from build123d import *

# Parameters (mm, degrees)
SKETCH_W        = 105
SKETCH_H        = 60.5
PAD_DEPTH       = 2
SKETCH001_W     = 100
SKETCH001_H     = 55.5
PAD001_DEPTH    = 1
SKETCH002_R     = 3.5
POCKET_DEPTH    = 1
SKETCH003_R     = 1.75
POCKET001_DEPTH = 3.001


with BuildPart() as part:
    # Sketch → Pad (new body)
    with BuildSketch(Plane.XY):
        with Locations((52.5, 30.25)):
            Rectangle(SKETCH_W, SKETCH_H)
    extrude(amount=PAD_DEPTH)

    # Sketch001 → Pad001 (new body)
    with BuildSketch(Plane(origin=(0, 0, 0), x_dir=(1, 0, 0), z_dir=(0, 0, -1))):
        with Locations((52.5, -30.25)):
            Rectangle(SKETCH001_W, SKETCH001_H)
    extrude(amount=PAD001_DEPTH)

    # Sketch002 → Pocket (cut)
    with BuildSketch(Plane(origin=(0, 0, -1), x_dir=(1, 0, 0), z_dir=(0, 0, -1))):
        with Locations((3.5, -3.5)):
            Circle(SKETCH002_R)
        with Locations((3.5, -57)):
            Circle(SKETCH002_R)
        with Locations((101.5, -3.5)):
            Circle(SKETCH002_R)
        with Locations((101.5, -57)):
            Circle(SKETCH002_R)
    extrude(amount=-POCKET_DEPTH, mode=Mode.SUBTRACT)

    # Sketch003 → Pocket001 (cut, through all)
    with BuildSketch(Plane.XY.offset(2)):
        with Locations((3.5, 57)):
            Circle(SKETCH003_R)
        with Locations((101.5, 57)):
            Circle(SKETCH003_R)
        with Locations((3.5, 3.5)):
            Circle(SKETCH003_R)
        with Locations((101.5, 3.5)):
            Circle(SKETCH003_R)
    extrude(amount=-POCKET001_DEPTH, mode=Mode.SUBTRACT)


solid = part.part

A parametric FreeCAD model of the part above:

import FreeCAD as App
import Part
import Sketcher

V = App.Vector
Q = App.Units.Quantity

doc = App.newDocument("Part")
body = doc.addObject("PartDesign::Body", "Body")

# Sketch on XY plane
sketch1 = doc.addObject("Sketcher::SketchObject", "Sketch")
body.addObject(sketch1)
sketch1.AttachmentSupport = (doc.XY_Plane, [""])
sketch1.MapMode = "FlatFace"
sketch1.addGeometry([
    Part.LineSegment(V(0, 60, 0), V(0, 0, 0)),
    Part.LineSegment(V(0, 0, 0), V(105, 0, 0)),
    Part.LineSegment(V(105, 0, 0), V(105, 60, 0)),
    Part.LineSegment(V(105, 60, 0), V(0, 60, 0)),
], False)
sketch1.addConstraint([
    Sketcher.Constraint("Coincident", 0, 2, 1, 1),
    Sketcher.Constraint("Coincident", 1, 2, 2, 1),
    Sketcher.Constraint("Coincident", 2, 2, 3, 1),
    Sketcher.Constraint("Coincident", 3, 2, 0, 1),
    Sketcher.Constraint("Vertical", 0),
    Sketcher.Constraint("Horizontal", 1),
    Sketcher.Constraint("Vertical", 2),
    Sketcher.Constraint("Horizontal", 3),
    Sketcher.Constraint("Coincident", 0, 2, -1, 1),
    Sketcher.Constraint("DistanceX", 1, 1, 1, 2, Q("105 mm")),
    Sketcher.Constraint("DistanceY", 0, 2, 0, 1, Q("60.5 mm")),
])
pad1 = doc.addObject("PartDesign::Pad", "Pad")
body.addObject(pad1)
pad1.Profile = sketch1
pad1.Length = 2

# Sketch on XY plane
sketch2 = doc.addObject("Sketcher::SketchObject", "Sketch001")
body.addObject(sketch2)
sketch2.AttachmentSupport = (doc.XY_Plane, [""])
sketch2.MapMode = "FlatFace"
sketch2.addGeometry([
    Part.LineSegment(V(2, 2, 0), V(2, 58, 0)),
    Part.LineSegment(V(2, 58, 0), V(102, 58, 0)),
    Part.LineSegment(V(102, 58, 0), V(102, 2, 0)),
    Part.LineSegment(V(102, 2, 0), V(2, 2, 0)),
], False)
sketch2.addConstraint([
    Sketcher.Constraint("Coincident", 0, 2, 1, 1),
    Sketcher.Constraint("Coincident", 1, 2, 2, 1),
    Sketcher.Constraint("Coincident", 2, 2, 3, 1),
    Sketcher.Constraint("Coincident", 3, 2, 0, 1),
    Sketcher.Constraint("Vertical", 0),
    Sketcher.Constraint("Horizontal", 1),
    Sketcher.Constraint("Vertical", 2),
    Sketcher.Constraint("Horizontal", 3),
    Sketcher.Constraint("DistanceX", 1, 1, 1, 2, Q("100 mm")),
    Sketcher.Constraint("DistanceY", 0, 1, 0, 2, Q("55.5 mm")),
    Sketcher.Constraint("DistanceY", -1, 1, 0, 2, Q("58 mm")),
    Sketcher.Constraint("DistanceX", -1, 1, 0, 2, Q("2.5 mm")),
])
pad2 = doc.addObject("PartDesign::Pad", "Pad001")
body.addObject(pad2)
pad2.Profile = sketch2
pad2.Length = 1
pad2.Reversed = True

# Sketch on XY plane
sketch3 = doc.addObject("Sketcher::SketchObject", "Sketch002")
body.addObject(sketch3)
sketch3.AttachmentSupport = (doc.XY_Plane, [""])
sketch3.MapMode = "FlatFace"
sketch3.AttachmentOffset = App.Placement(V(0, 0, -1), App.Rotation())
sketch3.addGeometry([
    Part.Circle(V(3.5, 3.5, 0), V(0, 0, 1), 3.5),
    Part.Circle(V(3.5, 57, 0), V(0, 0, 1), 3.5),
    Part.Circle(V(101.5, 3.5, 0), V(0, 0, 1), 3.5),
    Part.Circle(V(101.5, 57, 0), V(0, 0, 1), 3.5),
], False)
sketch3.addConstraint([
    Sketcher.Constraint("Equal", 0, 1),
    Sketcher.Constraint("Equal", 1, 2),
    Sketcher.Constraint("Equal", 2, 3),
    Sketcher.Constraint("Horizontal", 0, 3, 2, 3),
    Sketcher.Constraint("Horizontal", 1, 3, 3, 3),
    Sketcher.Constraint("Vertical", 0, 3, 1, 3),
    Sketcher.Constraint("Vertical", 2, 3, 3, 3),
    Sketcher.Constraint("Diameter", 0, Q("7 mm")),
    Sketcher.Constraint("DistanceY", -1, 1, 1, 3, Q("57 mm")),
    Sketcher.Constraint("DistanceX", 0, 3, 2, 3, Q("98 mm")),
    Sketcher.Constraint("DistanceX", -1, 1, 0, 3, Q("3.5 mm")),
    Sketcher.Constraint("DistanceY", -1, 1, 0, 3, Q("3.5 mm")),
])
pocket1 = doc.addObject("PartDesign::Pocket", "Pocket")
body.addObject(pocket1)
pocket1.Profile = sketch3
pocket1.Length = 1
pocket1.Reversed = True

# Sketch on XY plane
sketch4 = doc.addObject("Sketcher::SketchObject", "Sketch003")
body.addObject(sketch4)
sketch4.AttachmentSupport = (doc.XY_Plane, [""])
sketch4.MapMode = "FlatFace"
sketch4.AttachmentOffset = App.Placement(V(0, 0, 2), App.Rotation())
sketch4.addGeometry([
    Part.Circle(V(3.5, 57, 0), V(0, 0, 1), 1.8),
    Part.Circle(V(101.5, 57, 0), V(0, 0, 1), 1.8),
    Part.Circle(V(3.5, 3.5, 0), V(0, 0, 1), 1.8),
    Part.Circle(V(101.5, 3.5, 0), V(0, 0, 1), 1.8),
], False)
sketch4.addConstraint([
    Sketcher.Constraint("Equal", 0, 1),
    Sketcher.Constraint("Equal", 1, 2),
    Sketcher.Constraint("Equal", 2, 3),
    Sketcher.Constraint("Horizontal", 0, 3, 1, 3),
    Sketcher.Constraint("Horizontal", 2, 3, 3, 3),
    Sketcher.Constraint("Vertical", 0, 3, 2, 3),
    Sketcher.Constraint("Vertical", 1, 3, 3, 3),
    Sketcher.Constraint("Diameter", 0, Q("3.5 mm")),
    Sketcher.Constraint("DistanceY", -1, 1, 0, 3, Q("57 mm")),
    Sketcher.Constraint("DistanceX", 0, 3, 1, 3, Q("98 mm")),
    Sketcher.Constraint("DistanceX", -1, 1, 0, 3, Q("3.5 mm")),
    Sketcher.Constraint("DistanceY", -1, 1, 2, 3, Q("3.5 mm")),
])
pocket2 = doc.addObject("PartDesign::Pocket", "Pocket001")
body.addObject(pocket2)
pocket2.Profile = sketch4
pocket2.Type = "ThroughAll"

doc.recompute()
